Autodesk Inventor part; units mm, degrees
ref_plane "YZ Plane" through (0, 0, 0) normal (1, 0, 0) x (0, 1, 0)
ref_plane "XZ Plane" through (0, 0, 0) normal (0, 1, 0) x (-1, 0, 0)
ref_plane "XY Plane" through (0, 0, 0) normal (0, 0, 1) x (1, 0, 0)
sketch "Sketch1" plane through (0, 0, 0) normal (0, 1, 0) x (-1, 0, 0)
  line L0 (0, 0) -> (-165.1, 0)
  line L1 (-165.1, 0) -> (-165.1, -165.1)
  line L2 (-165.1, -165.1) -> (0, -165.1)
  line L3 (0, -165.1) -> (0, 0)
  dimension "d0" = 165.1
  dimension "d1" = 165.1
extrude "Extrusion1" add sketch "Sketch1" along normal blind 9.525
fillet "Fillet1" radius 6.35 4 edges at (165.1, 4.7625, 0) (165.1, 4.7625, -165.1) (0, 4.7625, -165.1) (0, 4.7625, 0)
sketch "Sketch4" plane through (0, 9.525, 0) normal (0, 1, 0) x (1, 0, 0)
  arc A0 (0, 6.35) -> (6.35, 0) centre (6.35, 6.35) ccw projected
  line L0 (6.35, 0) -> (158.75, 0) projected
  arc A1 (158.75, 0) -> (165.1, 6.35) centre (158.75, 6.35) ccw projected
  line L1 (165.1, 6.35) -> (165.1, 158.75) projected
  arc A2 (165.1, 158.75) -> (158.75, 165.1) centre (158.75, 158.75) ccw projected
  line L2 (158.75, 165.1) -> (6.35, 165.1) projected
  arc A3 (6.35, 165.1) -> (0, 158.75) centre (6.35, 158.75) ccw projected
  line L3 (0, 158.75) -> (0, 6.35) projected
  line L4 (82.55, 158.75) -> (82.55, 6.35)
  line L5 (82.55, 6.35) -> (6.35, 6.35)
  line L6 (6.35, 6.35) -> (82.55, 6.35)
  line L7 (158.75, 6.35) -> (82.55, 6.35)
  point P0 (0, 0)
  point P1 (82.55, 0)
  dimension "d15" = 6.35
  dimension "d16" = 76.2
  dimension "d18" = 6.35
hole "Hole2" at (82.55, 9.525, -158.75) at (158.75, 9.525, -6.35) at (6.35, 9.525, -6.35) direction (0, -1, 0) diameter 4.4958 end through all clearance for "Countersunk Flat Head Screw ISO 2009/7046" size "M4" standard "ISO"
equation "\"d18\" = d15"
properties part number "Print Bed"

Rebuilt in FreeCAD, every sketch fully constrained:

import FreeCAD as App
import Part
import Sketcher

V = App.Vector
Q = App.Units.Quantity


def edges_at(feature, points):
    """Names of the edges that pass closest to the given points."""
    edges = feature.Shape.Edges
    near = lambda p: min(range(len(edges)), key=lambda i: edges[i].distToShape(Part.Vertex(*p))[0])
    return sorted({f"Edge{near(p) + 1}" for p in points})

doc = App.newDocument("Part")
params = doc.addObject("Spreadsheet::Sheet", "Params")
for row, (alias, value) in enumerate([
    ("sketch1_width", "6.5 in"),
    ("pad1_length", "0.375 in"),
    ("fillet_radius", "0.25 in"),
    ("sketch2_diameter", "0.177 in"),
    ("hole_diameter", "0.177 in"),
], start=1):
    params.set(f"A{row}", alias)
    params.set(f"B{row}", "=" + value)
    params.setAlias(f"B{row}", alias)

body = doc.addObject("PartDesign::Body", "Body")

# Sketch on XZ plane
sketch1 = body.newObject("Sketcher::SketchObject", "Sketch")
sketch1.AttachmentSupport = (doc.getObject("XZ_Plane"), [""])
sketch1.MapMode = "FlatFace"
sketch1.addGeometry(Part.LineSegment(V(0, -165, 0), V(0, 0, 0)), False)
sketch1.addGeometry(Part.LineSegment(V(0, 0, 0), V(165, 0, 0)), False)
sketch1.addGeometry(Part.LineSegment(V(165, 0, 0), V(165, -165, 0)), False)
sketch1.addGeometry(Part.LineSegment(V(165, -165, 0), V(0, -165, 0)), False)
sketch1.addConstraint(Sketcher.Constraint("Coincident", 0, 2, 1, 1))
sketch1.addConstraint(Sketcher.Constraint("Coincident", 1, 2, 2, 1))
sketch1.addConstraint(Sketcher.Constraint("Coincident", 2, 2, 3, 1))
sketch1.addConstraint(Sketcher.Constraint("Coincident", 3, 2, 0, 1))
sketch1.addConstraint(Sketcher.Constraint("Vertical", 0))
sketch1.addConstraint(Sketcher.Constraint("Horizontal", 1))
sketch1.addConstraint(Sketcher.Constraint("Vertical", 2))
sketch1.addConstraint(Sketcher.Constraint("Horizontal", 3))
sketch1.addConstraint(Sketcher.Constraint("Coincident", 0, 2, -1, 1))
sketch1.addConstraint(Sketcher.Constraint("Equal", 3, 0))
sketch1.addConstraint(Sketcher.Constraint("DistanceX", 1, 1, 1, 2, Q("6.5 in")))
sketch1.setExpression("Constraints[10]", "Params.sketch1_width")
pad1 = body.newObject("PartDesign::Pad", "Pad")
pad1.Profile = sketch1
pad1.setExpression("Length", "Params.pad1_length")
pad1.Reversed = True
doc.recompute()

fillet = body.newObject("PartDesign::Fillet", "Fillet")
fillet.Base = (pad1, edges_at(pad1, [
    (165.1, 4.763, 0),
    (165.1, 4.763, -165.1),
    (0, 4.763, -165.1),
    (0, 4.763, 0),
]))
fillet.setExpression("Radius", "Params.fillet_radius")

# Sketch on XZ plane
sketch2 = body.newObject("Sketcher::SketchObject", "Sketch001")
sketch2.AttachmentSupport = (doc.getObject("XZ_Plane"), [""])
sketch2.MapMode = "FlatFace"
sketch2.AttachmentOffset = App.Placement(V(0, 0, -0.375 * 25.4), App.Rotation())
sketch2.addGeometry(Part.Circle(V(82.5, -158.8, 0), V(0, 0, 1), 2.2), False)
sketch2.addGeometry(Part.Circle(V(158.8, -6.3, 0), V(0, 0, 1), 2.2), False)
sketch2.addGeometry(Part.Circle(V(6.3, -6.3, 0), V(0, 0, 1), 2.2), False)
sketch2.addConstraint(Sketcher.Constraint("Equal", 0, 1))
sketch2.addConstraint(Sketcher.Constraint("Equal", 1, 2))
sketch2.addConstraint(Sketcher.Constraint("Horizontal", 1, 3, 2, 3))
sketch2.addConstraint(Sketcher.Constraint("Diameter", 0, Q("0.177 in")))
sketch2.addConstraint(Sketcher.Constraint("DistanceX", 0, 3, 1, 3, Q("3 in")))
sketch2.addConstraint(Sketcher.Constraint("DistanceY", 0, 3, 1, 3, Q("6 in")))
sketch2.addConstraint(Sketcher.Constraint("DistanceX", 2, 3, 1, 3, Q("6 in")))
sketch2.addConstraint(Sketcher.Constraint("DistanceX", -1, 1, 0, 3, Q("3.25 in")))
sketch2.addConstraint(Sketcher.Constraint("DistanceY", 0, 3, -1, 1, Q("6.25 in")))
sketch2.setExpression("Constraints[3]", "Params.sketch2_diameter")
doc.recompute()
hole = body.newObject("PartDesign::Hole", "Hole")
hole.Profile = sketch2
hole.ThreadType = "None"
hole.setExpression("Diameter", "Params.hole_diameter")
hole.DepthType = "ThroughAll"
hole.Reversed = True

doc.recompute()
